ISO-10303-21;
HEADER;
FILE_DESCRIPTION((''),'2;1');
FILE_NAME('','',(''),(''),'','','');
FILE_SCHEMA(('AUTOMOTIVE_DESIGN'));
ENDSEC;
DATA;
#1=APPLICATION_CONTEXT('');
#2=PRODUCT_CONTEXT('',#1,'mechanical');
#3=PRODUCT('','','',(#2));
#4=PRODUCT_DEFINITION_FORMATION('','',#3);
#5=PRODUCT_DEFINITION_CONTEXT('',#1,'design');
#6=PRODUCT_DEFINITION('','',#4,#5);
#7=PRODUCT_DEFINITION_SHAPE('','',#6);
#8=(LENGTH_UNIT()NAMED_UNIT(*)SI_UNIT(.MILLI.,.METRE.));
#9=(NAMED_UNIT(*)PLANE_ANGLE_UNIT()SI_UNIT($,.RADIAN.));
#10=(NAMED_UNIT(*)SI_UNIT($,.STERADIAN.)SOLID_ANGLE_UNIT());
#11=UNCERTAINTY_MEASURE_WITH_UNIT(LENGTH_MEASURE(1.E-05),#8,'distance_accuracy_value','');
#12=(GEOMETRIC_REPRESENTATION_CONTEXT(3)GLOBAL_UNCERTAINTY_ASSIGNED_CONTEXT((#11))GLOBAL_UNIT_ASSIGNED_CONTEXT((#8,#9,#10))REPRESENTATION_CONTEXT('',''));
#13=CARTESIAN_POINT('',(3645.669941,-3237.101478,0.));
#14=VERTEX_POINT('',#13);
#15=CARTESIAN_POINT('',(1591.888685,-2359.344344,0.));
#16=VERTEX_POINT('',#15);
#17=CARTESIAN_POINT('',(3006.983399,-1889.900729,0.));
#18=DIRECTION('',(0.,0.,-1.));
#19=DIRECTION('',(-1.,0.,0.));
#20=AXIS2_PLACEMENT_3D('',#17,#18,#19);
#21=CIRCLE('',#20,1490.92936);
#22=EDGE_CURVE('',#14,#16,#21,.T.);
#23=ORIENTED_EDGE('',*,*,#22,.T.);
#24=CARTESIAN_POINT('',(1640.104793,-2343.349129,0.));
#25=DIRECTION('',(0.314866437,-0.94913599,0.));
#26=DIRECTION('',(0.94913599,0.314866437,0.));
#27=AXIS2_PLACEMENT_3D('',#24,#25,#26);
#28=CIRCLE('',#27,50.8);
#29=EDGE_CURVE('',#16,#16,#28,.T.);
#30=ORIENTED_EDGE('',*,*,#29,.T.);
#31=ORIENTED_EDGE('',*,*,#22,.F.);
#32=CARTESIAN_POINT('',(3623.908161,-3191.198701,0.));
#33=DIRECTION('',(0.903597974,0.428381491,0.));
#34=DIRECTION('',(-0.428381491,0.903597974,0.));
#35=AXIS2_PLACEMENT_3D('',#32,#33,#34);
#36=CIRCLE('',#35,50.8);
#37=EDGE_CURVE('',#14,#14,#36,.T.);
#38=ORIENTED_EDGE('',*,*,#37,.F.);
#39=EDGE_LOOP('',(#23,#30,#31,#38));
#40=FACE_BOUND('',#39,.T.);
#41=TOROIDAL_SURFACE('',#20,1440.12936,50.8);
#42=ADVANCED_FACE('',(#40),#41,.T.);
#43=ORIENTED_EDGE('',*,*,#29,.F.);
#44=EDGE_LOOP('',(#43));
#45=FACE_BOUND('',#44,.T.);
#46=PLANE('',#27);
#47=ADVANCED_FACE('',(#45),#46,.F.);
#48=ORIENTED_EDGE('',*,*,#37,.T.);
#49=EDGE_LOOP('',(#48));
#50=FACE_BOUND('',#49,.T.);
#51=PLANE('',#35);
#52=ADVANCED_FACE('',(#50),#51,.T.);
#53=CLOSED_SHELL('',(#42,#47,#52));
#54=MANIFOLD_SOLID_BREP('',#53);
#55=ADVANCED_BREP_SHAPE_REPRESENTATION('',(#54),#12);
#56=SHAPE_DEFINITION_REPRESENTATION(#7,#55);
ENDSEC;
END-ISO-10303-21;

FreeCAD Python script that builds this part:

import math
import FreeCAD as App
import Part
import Sketcher
from FreeCAD import Vector
Q = App.Units.Quantity

doc = App.newDocument("Part")
body = doc.addObject("PartDesign::Body", "Body")

# Sketch on an angled plane
sketch1 = body.newObject("Sketcher::SketchObject", "Sketch")
sketch1.Placement = App.Placement(Vector(1640.104793, -2343.349129, 0), App.Rotation(Vector(0.94913599, 0.314866437, 0), Vector(0, 0, 1.000000001), Vector(0.314866437, -0.94913599, 0), "ZXY"))
sketch1.addGeometry(Part.Circle(Vector(0, 0, 0), Vector(0, 0, 1), 50.8), False)
sketch1.addConstraint([
    Sketcher.Constraint("Coincident", 0, 3, -1, 1),
    Sketcher.Constraint("Diameter", 0, Q("4 in")),
])

# Sketch on XY plane
sketch2 = body.newObject("Sketcher::SketchObject", "Sketch001")
sketch2.AttachmentSupport = (doc.getObject("XY_Plane"), [""])
sketch2.MapMode = "FlatFace"
sketch2.addGeometry(Part.ArcOfCircle(Part.Circle(Vector(3006.983399, -1889.900729, 0), Vector(0, 0, 1), 1440.12936), math.radians(-161.647249), math.radians(-64.635111)), False)
sketch2.addConstraint([
    Sketcher.Constraint("Radius", 0, 1440.12936),
    Sketcher.Constraint("DistanceX", -1, 1, 0, 3, 3006.983399),
    Sketcher.Constraint("DistanceY", 0, 2, -1, 1, 3191.198701),
    Sketcher.Constraint("DistanceY", 0, 1, 0, 3, 453.4484),
    Sketcher.Constraint("DistanceY", 0, 3, -1, 1, 1889.900729),
])
doc.recompute()

additivepipe = body.newObject("PartDesign::AdditivePipe", "AdditivePipe")
additivepipe.Profile = sketch1
additivepipe.Spine = (sketch2, ["Edge1"])

doc.recompute()
